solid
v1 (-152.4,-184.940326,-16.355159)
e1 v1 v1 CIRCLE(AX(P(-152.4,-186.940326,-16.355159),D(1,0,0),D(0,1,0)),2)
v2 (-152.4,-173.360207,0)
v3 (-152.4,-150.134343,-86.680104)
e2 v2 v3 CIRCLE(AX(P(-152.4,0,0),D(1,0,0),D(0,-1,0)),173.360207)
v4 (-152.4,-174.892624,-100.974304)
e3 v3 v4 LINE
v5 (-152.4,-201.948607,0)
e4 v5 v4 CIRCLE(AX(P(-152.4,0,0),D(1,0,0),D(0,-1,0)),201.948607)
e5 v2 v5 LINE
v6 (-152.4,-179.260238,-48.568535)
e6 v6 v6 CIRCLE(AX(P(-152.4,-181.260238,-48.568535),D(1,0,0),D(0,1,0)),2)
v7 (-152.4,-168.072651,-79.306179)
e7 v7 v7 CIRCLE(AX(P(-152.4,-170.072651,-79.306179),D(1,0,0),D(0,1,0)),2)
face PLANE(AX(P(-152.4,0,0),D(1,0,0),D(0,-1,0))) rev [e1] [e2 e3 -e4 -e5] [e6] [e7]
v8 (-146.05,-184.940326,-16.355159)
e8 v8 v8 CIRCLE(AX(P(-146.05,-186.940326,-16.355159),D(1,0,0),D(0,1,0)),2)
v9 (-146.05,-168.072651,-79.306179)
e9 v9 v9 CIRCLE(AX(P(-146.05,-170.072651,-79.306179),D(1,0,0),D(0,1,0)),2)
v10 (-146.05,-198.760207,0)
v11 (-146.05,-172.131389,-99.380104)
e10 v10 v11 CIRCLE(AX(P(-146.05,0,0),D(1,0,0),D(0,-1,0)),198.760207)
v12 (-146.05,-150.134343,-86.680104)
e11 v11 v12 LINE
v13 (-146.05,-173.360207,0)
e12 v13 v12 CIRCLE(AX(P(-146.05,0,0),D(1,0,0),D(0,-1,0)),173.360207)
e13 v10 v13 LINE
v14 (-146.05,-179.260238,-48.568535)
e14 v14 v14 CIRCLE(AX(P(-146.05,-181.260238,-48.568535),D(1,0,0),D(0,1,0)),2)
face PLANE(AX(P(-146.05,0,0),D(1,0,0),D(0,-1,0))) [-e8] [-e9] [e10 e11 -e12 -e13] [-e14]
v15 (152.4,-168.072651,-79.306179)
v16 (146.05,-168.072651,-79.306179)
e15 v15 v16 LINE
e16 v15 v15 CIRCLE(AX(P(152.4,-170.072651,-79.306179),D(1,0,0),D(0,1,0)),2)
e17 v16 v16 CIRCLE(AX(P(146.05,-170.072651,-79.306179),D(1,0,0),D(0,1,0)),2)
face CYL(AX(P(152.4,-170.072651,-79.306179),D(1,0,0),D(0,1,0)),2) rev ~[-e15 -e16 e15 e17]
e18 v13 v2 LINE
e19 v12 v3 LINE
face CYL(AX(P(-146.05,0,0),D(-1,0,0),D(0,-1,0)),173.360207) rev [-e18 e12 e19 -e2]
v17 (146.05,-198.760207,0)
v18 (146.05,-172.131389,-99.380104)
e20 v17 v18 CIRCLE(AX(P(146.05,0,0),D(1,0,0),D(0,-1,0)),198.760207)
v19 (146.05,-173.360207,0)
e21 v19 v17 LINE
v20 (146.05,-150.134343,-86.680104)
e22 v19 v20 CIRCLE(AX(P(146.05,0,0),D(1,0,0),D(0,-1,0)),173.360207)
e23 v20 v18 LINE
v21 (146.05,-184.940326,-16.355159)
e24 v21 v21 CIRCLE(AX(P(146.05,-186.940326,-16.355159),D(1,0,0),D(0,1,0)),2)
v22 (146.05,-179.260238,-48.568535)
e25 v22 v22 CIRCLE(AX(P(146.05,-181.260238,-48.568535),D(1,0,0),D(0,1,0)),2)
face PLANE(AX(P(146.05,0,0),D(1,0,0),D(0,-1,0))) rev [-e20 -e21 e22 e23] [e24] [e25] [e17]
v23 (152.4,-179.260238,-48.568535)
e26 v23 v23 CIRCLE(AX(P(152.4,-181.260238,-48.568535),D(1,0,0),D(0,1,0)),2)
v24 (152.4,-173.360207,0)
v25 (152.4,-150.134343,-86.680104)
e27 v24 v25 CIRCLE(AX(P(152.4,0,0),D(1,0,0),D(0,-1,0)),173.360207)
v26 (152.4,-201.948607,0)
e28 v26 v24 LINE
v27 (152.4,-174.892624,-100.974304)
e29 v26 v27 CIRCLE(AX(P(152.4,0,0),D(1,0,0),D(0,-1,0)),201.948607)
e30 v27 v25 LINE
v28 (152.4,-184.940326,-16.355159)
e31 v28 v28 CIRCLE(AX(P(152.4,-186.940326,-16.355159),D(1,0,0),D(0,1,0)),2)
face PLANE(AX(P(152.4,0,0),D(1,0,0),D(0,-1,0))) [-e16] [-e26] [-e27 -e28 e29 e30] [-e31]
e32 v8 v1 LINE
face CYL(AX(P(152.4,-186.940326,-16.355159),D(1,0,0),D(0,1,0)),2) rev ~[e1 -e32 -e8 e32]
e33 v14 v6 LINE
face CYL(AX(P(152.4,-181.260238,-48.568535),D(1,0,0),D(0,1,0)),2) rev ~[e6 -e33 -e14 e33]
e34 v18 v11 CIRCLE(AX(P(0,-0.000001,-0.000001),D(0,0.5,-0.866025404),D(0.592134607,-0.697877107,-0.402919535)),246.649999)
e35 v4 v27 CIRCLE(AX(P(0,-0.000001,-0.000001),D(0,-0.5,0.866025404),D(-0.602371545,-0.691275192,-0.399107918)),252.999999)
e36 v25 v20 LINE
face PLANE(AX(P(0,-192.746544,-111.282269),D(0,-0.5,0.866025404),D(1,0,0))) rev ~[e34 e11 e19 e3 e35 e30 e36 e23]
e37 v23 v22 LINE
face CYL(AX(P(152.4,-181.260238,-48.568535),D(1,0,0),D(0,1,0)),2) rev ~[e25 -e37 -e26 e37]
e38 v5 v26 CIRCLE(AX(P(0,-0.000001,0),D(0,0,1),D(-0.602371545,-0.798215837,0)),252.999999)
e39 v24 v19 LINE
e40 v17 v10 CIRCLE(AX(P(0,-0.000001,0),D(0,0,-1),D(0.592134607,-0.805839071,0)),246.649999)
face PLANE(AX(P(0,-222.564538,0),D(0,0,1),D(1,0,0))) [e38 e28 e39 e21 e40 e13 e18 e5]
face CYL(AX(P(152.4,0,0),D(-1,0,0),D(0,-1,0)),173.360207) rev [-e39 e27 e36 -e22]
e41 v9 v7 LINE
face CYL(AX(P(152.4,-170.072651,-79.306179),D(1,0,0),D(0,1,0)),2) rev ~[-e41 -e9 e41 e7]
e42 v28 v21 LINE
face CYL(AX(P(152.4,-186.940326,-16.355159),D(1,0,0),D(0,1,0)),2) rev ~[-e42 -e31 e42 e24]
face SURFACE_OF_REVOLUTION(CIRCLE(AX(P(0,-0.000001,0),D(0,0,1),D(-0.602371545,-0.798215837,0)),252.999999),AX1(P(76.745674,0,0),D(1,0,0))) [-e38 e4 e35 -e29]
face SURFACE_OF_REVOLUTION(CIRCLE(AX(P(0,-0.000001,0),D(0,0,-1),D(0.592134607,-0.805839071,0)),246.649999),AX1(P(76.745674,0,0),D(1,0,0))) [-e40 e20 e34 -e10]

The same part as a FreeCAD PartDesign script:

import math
import FreeCAD as App
import Part
import Sketcher

doc = App.newDocument("Part")
body = doc.addObject("PartDesign::Body", "Body")

# Sketch on XY plane
sketch1 = body.newObject("Sketcher::SketchObject", "Sketch")
sketch1.AttachmentSupport = (doc.getObject("XY_Plane"), [""])
sketch1.MapMode = "FlatFace"
sketch1.addGeometry([
    Part.LineSegment(App.Vector(-152, -173, 0), App.Vector(-152, -202, 0)),  # 0
    Part.ArcOfCircle(Part.Circle(App.Vector(0, 0, 0), App.Vector(0, 0, 1), 253), math.radians(-127), math.radians(-53)),  # 1
    Part.LineSegment(App.Vector(152, -202, 0), App.Vector(152, -173, 0)),  # 2
    Part.LineSegment(App.Vector(152, -173, 0), App.Vector(146, -173, 0)),  # 3
    Part.LineSegment(App.Vector(146, -173, 0), App.Vector(146, -199, 0)),  # 4
    Part.ArcOfCircle(Part.Circle(App.Vector(0, 0, 0), App.Vector(0, 0, 1), 247), math.radians(-126), math.radians(-54)),  # 5
    Part.LineSegment(App.Vector(-146, -199, 0), App.Vector(-146, -173, 0)),  # 6
    Part.LineSegment(App.Vector(-146, -173, 0), App.Vector(-152, -173, 0)),  # 7
], False)
sketch1.addConstraint([
    Sketcher.Constraint("Coincident", 0, 2, 1, 1),
    Sketcher.Constraint("Coincident", 1, 2, 2, 1),
    Sketcher.Constraint("Coincident", 2, 2, 3, 1),
    Sketcher.Constraint("Coincident", 3, 2, 4, 1),
    Sketcher.Constraint("Coincident", 4, 2, 5, 2),
    Sketcher.Constraint("Coincident", 5, 1, 6, 1),
    Sketcher.Constraint("Coincident", 6, 2, 7, 1),
    Sketcher.Constraint("Coincident", 7, 2, 0, 1),
    Sketcher.Constraint("Vertical", 0),
    Sketcher.Constraint("Vertical", 2),
    Sketcher.Constraint("Horizontal", 3),
    Sketcher.Constraint("Vertical", 4),
    Sketcher.Constraint("Vertical", 6),
    Sketcher.Constraint("Horizontal", 7),
    Sketcher.Constraint("Coincident", 1, 3, -1, 1),
    Sketcher.Constraint("Coincident", 5, 3, -1, 1),
    Sketcher.Constraint("Symmetric", 3, 2, 6, 2, -2),
    Sketcher.Constraint("Horizontal", 0, 2, 1, 2),
    Sketcher.Constraint("Radius", 1, 252.999999),
    Sketcher.Constraint("Radius", 5, 246.649999),
    Sketcher.Constraint("DistanceY", 4, 2, 4, 1, 25.4),
    Sketcher.Constraint("DistanceX", 3, 2, 3, 1, 6.35),
    Sketcher.Constraint("DistanceX", 0, 2, -1, 1, 152.4),
])
revolution = body.newObject("PartDesign::Revolution", "Revolution")
revolution.Profile = sketch1
revolution.ReferenceAxis = (sketch1, ["H_Axis"])
revolution.Angle = 30

# Sketch on YZ plane
sketch2 = body.newObject("Sketcher::SketchObject", "Sketch001")
sketch2.AttachmentSupport = (doc.getObject("YZ_Plane"), [""])
sketch2.MapMode = "FlatFace"
sketch2.AttachmentOffset = App.Placement(App.Vector(0, 0, 152.4), App.Rotation())
sketch2.addGeometry([
    Part.Circle(App.Vector(-16.4, 186.9, 0), App.Vector(0, 0, 1), 2),  # 0
    Part.Circle(App.Vector(-48.6, 181.3, 0), App.Vector(0, 0, 1), 2),  # 1
    Part.Circle(App.Vector(-79.3, 170.1, 0), App.Vector(0, 0, 1), 2),  # 2
    Part.Circle(App.Vector(-107.6, 153.7, 0), App.Vector(0, 0, 1), 2),  # 3
    Part.Circle(App.Vector(-132.7, 132.7, 0), App.Vector(0, 0, 1), 2),  # 4
    Part.Circle(App.Vector(-153.7, 107.6, 0), App.Vector(0, 0, 1), 2),  # 5
    Part.Circle(App.Vector(-170.1, 79.3, 0), App.Vector(0, 0, 1), 2),  # 6
    Part.Circle(App.Vector(-181.3, 48.6, 0), App.Vector(0, 0, 1), 2),  # 7
    Part.Circle(App.Vector(-186.9, 16.4, 0), App.Vector(0, 0, 1), 2),  # 8
    Part.Circle(App.Vector(-186.9, -16.4, 0), App.Vector(0, 0, 1), 2),  # 9
    Part.Circle(App.Vector(-181.3, -48.6, 0), App.Vector(0, 0, 1), 2),  # 10
    Part.Circle(App.Vector(-170.1, -79.3, 0), App.Vector(0, 0, 1), 2),  # 11
    Part.Circle(App.Vector(-153.7, -107.6, 0), App.Vector(0, 0, 1), 2),  # 12
    Part.Circle(App.Vector(-132.7, -132.7, 0), App.Vector(0, 0, 1), 2),  # 13
    Part.Circle(App.Vector(-107.6, -153.7, 0), App.Vector(0, 0, 1), 2),  # 14
    Part.Circle(App.Vector(-79.3, -170.1, 0), App.Vector(0, 0, 1), 2),  # 15
    Part.Circle(App.Vector(-48.6, -181.3, 0), App.Vector(0, 0, 1), 2),  # 16
    Part.Circle(App.Vector(-16.4, -186.9, 0), App.Vector(0, 0, 1), 2),  # 17
    Part.Circle(App.Vector(16.4, -186.9, 0), App.Vector(0, 0, 1), 2),  # 18
    Part.Circle(App.Vector(48.6, -181.3, 0), App.Vector(0, 0, 1), 2),  # 19
    Part.Circle(App.Vector(79.3, -170.1, 0), App.Vector(0, 0, 1), 2),  # 20
    Part.Circle(App.Vector(107.6, -153.7, 0), App.Vector(0, 0, 1), 2),  # 21
    Part.Circle(App.Vector(132.7, -132.7, 0), App.Vector(0, 0, 1), 2),  # 22
    Part.Circle(App.Vector(153.7, -107.6, 0), App.Vector(0, 0, 1), 2),  # 23
    Part.Circle(App.Vector(170.1, -79.3, 0), App.Vector(0, 0, 1), 2),  # 24
    Part.Circle(App.Vector(181.3, -48.6, 0), App.Vector(0, 0, 1), 2),  # 25
    Part.Circle(App.Vector(186.9, -16.4, 0), App.Vector(0, 0, 1), 2),  # 26
    Part.Circle(App.Vector(186.9, 16.4, 0), App.Vector(0, 0, 1), 2),  # 27
    Part.Circle(App.Vector(181.3, 48.6, 0), App.Vector(0, 0, 1), 2),  # 28
    Part.Circle(App.Vector(170.1, 79.3, 0), App.Vector(0, 0, 1), 2),  # 29
    Part.Circle(App.Vector(153.7, 107.6, 0), App.Vector(0, 0, 1), 2),  # 30
    Part.Circle(App.Vector(132.7, 132.7, 0), App.Vector(0, 0, 1), 2),  # 31
    Part.Circle(App.Vector(107.6, 153.7, 0), App.Vector(0, 0, 1), 2),  # 32
    Part.Circle(App.Vector(79.3, 170.1, 0), App.Vector(0, 0, 1), 2),  # 33
    Part.Circle(App.Vector(48.6, 181.3, 0), App.Vector(0, 0, 1), 2),  # 34
    Part.Circle(App.Vector(16.4, 186.9, 0), App.Vector(0, 0, 1), 2),  # 35
], False)
sketch2.addConstraint([
    Sketcher.Constraint("Equal", 0, 1),
    Sketcher.Constraint("Equal", 1, 2),
    Sketcher.Constraint("Equal", 2, 3),
    Sketcher.Constraint("Equal", 3, 4),
    Sketcher.Constraint("Equal", 4, 5),
    Sketcher.Constraint("Equal", 5, 6),
    Sketcher.Constraint("Equal", 6, 7),
    Sketcher.Constraint("Equal", 7, 8),
    Sketcher.Constraint("Equal", 8, 9),
    Sketcher.Constraint("Equal", 9, 10),
    Sketcher.Constraint("Equal", 10, 11),
    Sketcher.Constraint("Equal", 11, 12),
    Sketcher.Constraint("Equal", 12, 13),
    Sketcher.Constraint("Equal", 13, 14),
    Sketcher.Constraint("Equal", 14, 15),
    Sketcher.Constraint("Equal", 15, 16),
    Sketcher.Constraint("Equal", 16, 17),
    Sketcher.Constraint("Equal", 17, 18),
    Sketcher.Constraint("Equal", 18, 19),
    Sketcher.Constraint("Equal", 19, 20),
    Sketcher.Constraint("Equal", 20, 21),
    Sketcher.Constraint("Equal", 21, 22),
    Sketcher.Constraint("Equal", 22, 23),
    Sketcher.Constraint("Equal", 23, 24),
    Sketcher.Constraint("Equal", 24, 25),
    Sketcher.Constraint("Equal", 25, 26),
    Sketcher.Constraint("Equal", 26, 27),
    Sketcher.Constraint("Equal", 27, 28),
    Sketcher.Constraint("Equal", 28, 29),
    Sketcher.Constraint("Equal", 29, 30),
    Sketcher.Constraint("Equal", 30, 31),
    Sketcher.Constraint("Equal", 31, 32),
    Sketcher.Constraint("Equal", 32, 33),
    Sketcher.Constraint("Equal", 33, 34),
    Sketcher.Constraint("Equal", 34, 35),
    Sketcher.Constraint("Symmetric", 0, 3, 18, 3, -1, 1),
    Sketcher.Constraint("Symmetric", 1, 3, 19, 3, -1, 1),
    Sketcher.Constraint("Symmetric", 2, 3, 20, 3, -1, 1),
    Sketcher.Constraint("Symmetric", 3, 3, 21, 3, -1, 1),
    Sketcher.Constraint("Symmetric", 4, 3, 22, 3, -1, 1),
    Sketcher.Constraint("Symmetric", 5, 3, 23, 3, -1, 1),
    Sketcher.Constraint("Symmetric", 6, 3, 24, 3, -1, 1),
    Sketcher.Constraint("Symmetric", 7, 3, 25, 3, -1, 1),
    Sketcher.Constraint("Symmetric", 8, 3, 26, 3, -1, 1),
    Sketcher.Constraint("Symmetric", 9, 3, 27, 3, -1, 1),
    Sketcher.Constraint("Symmetric", 10, 3, 28, 3, -1, 1),
    Sketcher.Constraint("Symmetric", 11, 3, 29, 3, -1, 1),
    Sketcher.Constraint("Symmetric", 12, 3, 30, 3, -1, 1),
    Sketcher.Constraint("Symmetric", 13, 3, 31, 3, -1, 1),
    Sketcher.Constraint("Symmetric", 14, 3, 32, 3, -1, 1),
    Sketcher.Constraint("Symmetric", 15, 3, 33, 3, -1, 1),
    Sketcher.Constraint("Symmetric", 16, 3, 34, 3, -1, 1),
    Sketcher.Constraint("Symmetric", 17, 3, 35, 3, -1, 1),
    Sketcher.Constraint("Symmetric", 17, 3, 18, 3, -2),
    Sketcher.Constraint("Symmetric", 16, 3, 19, 3, -2),
    Sketcher.Constraint("Symmetric", 15, 3, 20, 3, -2),
    Sketcher.Constraint("Symmetric", 14, 3, 21, 3, -2),
    Sketcher.Constraint("Symmetric", 13, 3, 22, 3, -2),
    Sketcher.Constraint("Symmetric", 12, 3, 23, 3, -2),
    Sketcher.Constraint("Symmetric", 11, 3, 24, 3, -2),
    Sketcher.Constraint("Symmetric", 10, 3, 25, 3, -2),
    Sketcher.Constraint("Symmetric", 9, 3, 26, 3, -2),
    Sketcher.Constraint("Diameter", 0, 4.0),
    Sketcher.Constraint("DistanceX", 0, 3, -1, 1, 16.355159),
    Sketcher.Constraint("DistanceX", 2, 3, -1, 1, 79.306179),
    Sketcher.Constraint("DistanceY", -1, 1, 2, 3, 170.072651),
    Sketcher.Constraint("DistanceY", -1, 1, 3, 3, 153.717491),
    Sketcher.Constraint("DistanceX", 5, 3, -1, 1, 153.717491),
    Sketcher.Constraint("DistanceX", 6, 3, -1, 1, 170.072651),
    Sketcher.Constraint("DistanceY", -1, 1, 6, 3, 79.306179),
    Sketcher.Constraint("DistanceY", -1, 1, 8, 3, 16.355159),
    Sketcher.Constraint("DistanceY", 1, 3, 0, 3, 5.680088),
    Sketcher.Constraint("DistanceX", 3, 3, 1, 3, 59.065611),
    Sketcher.Constraint("DistanceX", 4, 3, 1, 3, 84.123169),
    Sketcher.Constraint("DistanceY", 5, 3, 1, 3, 73.626092),
    Sketcher.Constraint("DistanceY", 6, 3, 1, 3, 101.954059),
    Sketcher.Constraint("DistanceY", 7, 3, 5, 3, 59.065611),
    Sketcher.Constraint("DistanceY", 7, 3, 4, 3, 84.123169),
    Sketcher.Constraint("DistanceX", 7, 3, 3, 3, 73.626092),
    Sketcher.Constraint("DistanceX", 7, 3, 2, 3, 101.954059),
    Sketcher.Constraint("DistanceX", 8, 3, 7, 3, 5.680088),
])
pocket1 = body.newObject("PartDesign::Pocket", "Pocket")
pocket1.Profile = sketch2
pocket1.Type = "ThroughAll"

doc.recompute()
